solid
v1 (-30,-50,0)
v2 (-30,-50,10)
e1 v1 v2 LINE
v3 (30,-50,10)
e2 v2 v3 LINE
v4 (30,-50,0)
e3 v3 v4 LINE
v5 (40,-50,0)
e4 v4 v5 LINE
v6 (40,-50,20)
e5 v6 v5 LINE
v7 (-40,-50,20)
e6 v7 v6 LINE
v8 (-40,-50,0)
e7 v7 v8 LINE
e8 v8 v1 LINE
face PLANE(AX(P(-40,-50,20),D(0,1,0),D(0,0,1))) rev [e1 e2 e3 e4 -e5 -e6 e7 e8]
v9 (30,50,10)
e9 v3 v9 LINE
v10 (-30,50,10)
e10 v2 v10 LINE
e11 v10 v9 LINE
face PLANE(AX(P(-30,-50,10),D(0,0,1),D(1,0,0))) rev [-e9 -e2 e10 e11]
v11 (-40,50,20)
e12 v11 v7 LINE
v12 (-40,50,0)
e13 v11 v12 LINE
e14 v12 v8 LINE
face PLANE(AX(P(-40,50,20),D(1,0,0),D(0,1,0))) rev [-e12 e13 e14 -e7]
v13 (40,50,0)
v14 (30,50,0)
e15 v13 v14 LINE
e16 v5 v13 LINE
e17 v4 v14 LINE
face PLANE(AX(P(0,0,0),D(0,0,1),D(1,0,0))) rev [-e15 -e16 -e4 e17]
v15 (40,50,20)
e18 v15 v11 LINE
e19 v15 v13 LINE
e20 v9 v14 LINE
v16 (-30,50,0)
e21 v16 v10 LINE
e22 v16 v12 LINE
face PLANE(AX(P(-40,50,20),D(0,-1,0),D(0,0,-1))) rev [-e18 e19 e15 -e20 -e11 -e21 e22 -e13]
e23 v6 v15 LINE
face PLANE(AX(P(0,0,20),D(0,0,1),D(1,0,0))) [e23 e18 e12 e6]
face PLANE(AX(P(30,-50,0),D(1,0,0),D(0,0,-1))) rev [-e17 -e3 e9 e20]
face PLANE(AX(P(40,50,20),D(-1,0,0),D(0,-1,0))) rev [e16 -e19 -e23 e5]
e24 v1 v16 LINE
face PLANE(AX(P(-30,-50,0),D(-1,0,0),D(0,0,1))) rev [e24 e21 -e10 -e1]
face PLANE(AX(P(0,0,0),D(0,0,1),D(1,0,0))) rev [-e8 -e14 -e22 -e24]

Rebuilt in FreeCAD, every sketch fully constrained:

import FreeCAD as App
import Part
import Sketcher
from FreeCAD import Vector


def add_polygon(sketch, points):
    """Adds a closed chain of lines whose ends are joined by coincident constraints."""
    first, n = sketch.GeometryCount, len(points)
    for a, b in zip(points, points[1:] + points[:1]):
        sketch.addGeometry(Part.LineSegment(App.Vector(*a, 0), App.Vector(*b, 0)), False)
    for i in range(n):
        sketch.addConstraint(Sketcher.Constraint("Coincident", first + i, 2, first + (i + 1) % n, 1))

doc = App.newDocument("Part")
params = doc.addObject("Spreadsheet::Sheet", "Params")
for row, (alias, value) in enumerate([
    ("sketch1_width", "80 mm"),
    ("sketch1_height", "100 mm"),
    ("pad1_length", "20 mm"),
    ("sketch2_width", "60 mm"),
    ("sketch2_height", "10 mm"),
    ("pocket1_length", "100 mm"),
], start=1):
    params.set(f"A{row}", alias)
    params.set(f"B{row}", "=" + value)
    params.setAlias(f"B{row}", alias)

body = doc.addObject("PartDesign::Body", "Body")

sketch1 = doc.addObject("Sketcher::SketchObject", "Sketch")
body.addObject(sketch1)
sketch1.AttachmentSupport = (doc.XY_Plane, [""])
sketch1.MapMode = "FlatFace"
add_polygon(sketch1, [(-40, 50), (-40, -50), (40, -50), (40, 50)])
sketch1.addConstraint(Sketcher.Constraint("Vertical", 0))
sketch1.addConstraint(Sketcher.Constraint("Horizontal", 1))
sketch1.addConstraint(Sketcher.Constraint("Vertical", 2))
sketch1.addConstraint(Sketcher.Constraint("Horizontal", 3))
sketch1.addConstraint(Sketcher.Constraint("Symmetric", 0, 2, 2, 2, -1, 1))
sketch1.addConstraint(Sketcher.Constraint("DistanceX", 1, 1, 1, 2, 80.0))
sketch1.addConstraint(Sketcher.Constraint("DistanceY", 0, 2, 0, 1, 100.0))
sketch1.setExpression("Constraints[9]", "Params.sketch1_width")
sketch1.setExpression("Constraints[10]", "Params.sketch1_height")
pad1 = doc.addObject("PartDesign::Pad", "Pad")
body.addObject(pad1)
pad1.Profile = sketch1
pad1.setExpression("Length", "Params.pad1_length")

sketch2 = doc.addObject("Sketcher::SketchObject", "Sketch001")
body.addObject(sketch2)
sketch2.AttachmentSupport = (doc.XZ_Plane, [""])
sketch2.MapMode = "FlatFace"
sketch2.AttachmentOffset = App.Placement(Vector(0, 0, -50), App.Rotation())
add_polygon(sketch2, [(-30, 0), (-30, 10), (30, 10), (30, 0)])
sketch2.addConstraint(Sketcher.Constraint("Vertical", 0))
sketch2.addConstraint(Sketcher.Constraint("Horizontal", 1))
sketch2.addConstraint(Sketcher.Constraint("Vertical", 2))
sketch2.addConstraint(Sketcher.Constraint("Horizontal", 3))
sketch2.addConstraint(Sketcher.Constraint("Symmetric", 2, 2, 3, 2, -1, 1))
sketch2.addConstraint(Sketcher.Constraint("DistanceX", 1, 1, 1, 2, 60.0))
sketch2.addConstraint(Sketcher.Constraint("DistanceY", 0, 1, 0, 2, 10.0))
sketch2.setExpression("Constraints[9]", "Params.sketch2_width")
sketch2.setExpression("Constraints[10]", "Params.sketch2_height")
pocket1 = doc.addObject("PartDesign::Pocket", "Pocket")
body.addObject(pocket1)
pocket1.Profile = sketch2
pocket1.setExpression("Length", "Params.pocket1_length")
pocket1.Reversed = True

doc.recompute()
